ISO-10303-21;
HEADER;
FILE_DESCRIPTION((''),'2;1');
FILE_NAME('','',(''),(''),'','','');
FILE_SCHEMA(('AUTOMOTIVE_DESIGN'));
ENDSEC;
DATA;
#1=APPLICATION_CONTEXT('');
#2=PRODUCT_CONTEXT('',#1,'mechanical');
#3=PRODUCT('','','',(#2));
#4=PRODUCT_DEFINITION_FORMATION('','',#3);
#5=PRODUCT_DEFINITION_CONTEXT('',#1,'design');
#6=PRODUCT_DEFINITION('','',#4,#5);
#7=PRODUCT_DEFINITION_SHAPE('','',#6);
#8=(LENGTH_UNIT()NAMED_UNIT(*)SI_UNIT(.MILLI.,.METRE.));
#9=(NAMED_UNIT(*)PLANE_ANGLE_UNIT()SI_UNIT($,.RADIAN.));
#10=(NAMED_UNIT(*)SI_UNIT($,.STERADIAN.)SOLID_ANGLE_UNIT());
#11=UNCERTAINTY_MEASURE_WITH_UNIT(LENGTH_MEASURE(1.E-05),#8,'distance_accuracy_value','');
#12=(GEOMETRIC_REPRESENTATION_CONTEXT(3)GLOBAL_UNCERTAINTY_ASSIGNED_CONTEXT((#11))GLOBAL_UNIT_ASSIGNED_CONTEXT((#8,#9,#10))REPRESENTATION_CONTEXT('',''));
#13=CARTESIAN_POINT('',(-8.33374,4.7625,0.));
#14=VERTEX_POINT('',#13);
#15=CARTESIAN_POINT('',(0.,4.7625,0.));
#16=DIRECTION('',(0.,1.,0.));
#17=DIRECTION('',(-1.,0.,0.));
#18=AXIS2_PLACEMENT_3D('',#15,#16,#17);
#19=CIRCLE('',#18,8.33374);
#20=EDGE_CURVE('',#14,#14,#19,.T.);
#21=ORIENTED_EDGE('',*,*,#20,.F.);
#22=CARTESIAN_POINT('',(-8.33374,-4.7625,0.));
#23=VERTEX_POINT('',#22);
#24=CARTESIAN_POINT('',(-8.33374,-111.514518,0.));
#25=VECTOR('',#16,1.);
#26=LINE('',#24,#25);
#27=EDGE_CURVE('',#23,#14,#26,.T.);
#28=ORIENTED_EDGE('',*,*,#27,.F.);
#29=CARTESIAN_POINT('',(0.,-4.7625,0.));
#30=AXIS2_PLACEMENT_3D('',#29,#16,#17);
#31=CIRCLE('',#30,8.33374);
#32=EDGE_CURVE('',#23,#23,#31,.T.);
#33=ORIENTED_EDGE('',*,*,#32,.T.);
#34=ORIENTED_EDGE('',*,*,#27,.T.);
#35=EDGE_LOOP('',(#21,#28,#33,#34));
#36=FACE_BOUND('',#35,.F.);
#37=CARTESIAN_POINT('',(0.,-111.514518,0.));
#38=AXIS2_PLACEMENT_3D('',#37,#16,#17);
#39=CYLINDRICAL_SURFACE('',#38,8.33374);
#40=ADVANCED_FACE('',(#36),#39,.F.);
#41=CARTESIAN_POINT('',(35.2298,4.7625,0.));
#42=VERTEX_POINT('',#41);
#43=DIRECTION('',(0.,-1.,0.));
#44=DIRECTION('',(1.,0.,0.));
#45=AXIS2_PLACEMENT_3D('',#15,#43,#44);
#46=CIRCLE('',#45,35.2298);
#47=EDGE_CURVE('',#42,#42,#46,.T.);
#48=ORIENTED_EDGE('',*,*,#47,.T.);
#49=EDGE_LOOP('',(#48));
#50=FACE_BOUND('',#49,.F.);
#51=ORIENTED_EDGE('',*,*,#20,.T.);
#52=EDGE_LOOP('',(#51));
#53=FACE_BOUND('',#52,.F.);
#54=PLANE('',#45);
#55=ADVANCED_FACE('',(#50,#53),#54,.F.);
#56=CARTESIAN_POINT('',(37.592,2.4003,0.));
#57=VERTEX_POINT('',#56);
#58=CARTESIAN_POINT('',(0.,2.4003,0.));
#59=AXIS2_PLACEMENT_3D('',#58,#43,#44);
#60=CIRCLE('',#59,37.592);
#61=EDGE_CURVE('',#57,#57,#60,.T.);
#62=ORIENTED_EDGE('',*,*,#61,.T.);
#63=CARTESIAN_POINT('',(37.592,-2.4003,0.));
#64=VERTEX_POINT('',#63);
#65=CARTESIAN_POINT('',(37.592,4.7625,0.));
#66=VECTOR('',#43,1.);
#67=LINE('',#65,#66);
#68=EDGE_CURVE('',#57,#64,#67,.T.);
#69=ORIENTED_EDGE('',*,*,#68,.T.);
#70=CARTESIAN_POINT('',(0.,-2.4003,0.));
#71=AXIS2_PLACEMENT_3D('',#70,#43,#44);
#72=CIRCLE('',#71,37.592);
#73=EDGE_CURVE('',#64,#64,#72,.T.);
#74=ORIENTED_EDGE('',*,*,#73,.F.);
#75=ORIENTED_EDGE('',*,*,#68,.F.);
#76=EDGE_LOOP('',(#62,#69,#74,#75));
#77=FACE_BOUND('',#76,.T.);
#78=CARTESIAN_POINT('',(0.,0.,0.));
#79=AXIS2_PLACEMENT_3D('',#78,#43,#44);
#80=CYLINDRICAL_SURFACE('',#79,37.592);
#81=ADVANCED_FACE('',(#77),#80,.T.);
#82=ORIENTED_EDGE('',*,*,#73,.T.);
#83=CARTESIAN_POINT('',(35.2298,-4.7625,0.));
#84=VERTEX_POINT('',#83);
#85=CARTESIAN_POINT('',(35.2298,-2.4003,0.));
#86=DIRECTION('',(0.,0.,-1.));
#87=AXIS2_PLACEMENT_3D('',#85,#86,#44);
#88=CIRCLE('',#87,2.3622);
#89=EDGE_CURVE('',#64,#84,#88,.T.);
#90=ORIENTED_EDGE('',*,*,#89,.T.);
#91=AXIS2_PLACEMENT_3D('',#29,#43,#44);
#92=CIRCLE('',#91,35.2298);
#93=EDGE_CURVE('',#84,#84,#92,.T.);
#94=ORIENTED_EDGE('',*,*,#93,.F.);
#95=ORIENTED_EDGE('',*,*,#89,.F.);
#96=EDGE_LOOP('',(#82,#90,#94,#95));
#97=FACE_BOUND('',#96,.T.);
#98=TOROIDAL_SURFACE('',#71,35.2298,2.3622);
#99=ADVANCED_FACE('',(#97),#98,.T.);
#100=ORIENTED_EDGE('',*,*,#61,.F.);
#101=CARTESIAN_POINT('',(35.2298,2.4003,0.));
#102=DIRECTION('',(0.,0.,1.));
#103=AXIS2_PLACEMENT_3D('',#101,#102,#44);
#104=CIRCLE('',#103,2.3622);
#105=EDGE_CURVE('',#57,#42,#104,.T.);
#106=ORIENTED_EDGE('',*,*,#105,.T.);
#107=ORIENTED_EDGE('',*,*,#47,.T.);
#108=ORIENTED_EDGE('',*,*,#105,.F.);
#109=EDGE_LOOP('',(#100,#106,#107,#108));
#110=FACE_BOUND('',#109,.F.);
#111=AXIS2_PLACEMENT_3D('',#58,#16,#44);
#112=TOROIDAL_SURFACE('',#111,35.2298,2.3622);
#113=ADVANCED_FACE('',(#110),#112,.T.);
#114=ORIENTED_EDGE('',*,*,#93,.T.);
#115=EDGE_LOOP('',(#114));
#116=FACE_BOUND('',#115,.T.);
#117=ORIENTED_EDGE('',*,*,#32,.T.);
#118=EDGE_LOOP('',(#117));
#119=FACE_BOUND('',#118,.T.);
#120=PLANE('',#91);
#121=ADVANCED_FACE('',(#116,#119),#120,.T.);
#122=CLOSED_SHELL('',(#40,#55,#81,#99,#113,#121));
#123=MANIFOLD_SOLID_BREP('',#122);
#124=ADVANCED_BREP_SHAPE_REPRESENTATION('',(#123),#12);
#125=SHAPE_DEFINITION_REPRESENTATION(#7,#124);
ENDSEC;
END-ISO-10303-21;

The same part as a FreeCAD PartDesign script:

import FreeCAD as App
import Part
import Sketcher
Q = App.Units.Quantity


def edges_at(feature, points):
    """Names of the edges that pass closest to the given points."""
    edges = feature.Shape.Edges
    near = lambda p: min(range(len(edges)), key=lambda i: edges[i].distToShape(Part.Vertex(*p))[0])
    return sorted({f"Edge{near(p) + 1}" for p in points})

doc = App.newDocument("Part")
body = doc.addObject("PartDesign::Body", "Body")

sketch1 = body.newObject("Sketcher::SketchObject", "Sketch")
sketch1.AttachmentSupport = (doc.getObject("XZ_Plane"), [""])
sketch1.MapMode = "FlatFace"
sketch1.addGeometry(Part.Circle(App.Vector(0, 0, 0), App.Vector(0, 0, 1), 38), False)
sketch1.addConstraint([
    Sketcher.Constraint("Coincident", 0, 3, -1, 1),
    Sketcher.Constraint("Diameter", 0, Q("2.96 in")),
])
pad1 = body.newObject("PartDesign::Pad", "Pad")
pad1.Profile = sketch1
pad1.Length = Q("0.375 in")
pad1.Midplane = True

sketch2 = body.newObject("Sketcher::SketchObject", "Sketch001")
sketch2.AttachmentSupport = (doc.getObject("XZ_Plane"), [""])
sketch2.MapMode = "FlatFace"
sketch2.AttachmentOffset = App.Placement(App.Vector(0, 0, 0.1875 * 25.4), App.Rotation())
sketch2.addGeometry(Part.Circle(App.Vector(0, 0, 0), App.Vector(0, 0, 1), 8), False)
sketch2.addConstraint([
    Sketcher.Constraint("Coincident", 0, 3, -1, 1),
    Sketcher.Constraint("Diameter", 0, Q("0.6562 in")),
])
doc.recompute()
hole = body.newObject("PartDesign::Hole", "Hole")
hole.Profile = sketch2
hole.ThreadType = "None"
hole.Diameter = Q("0.6562 in")
hole.DepthType = "ThroughAll"
doc.recompute()

fillet = body.newObject("PartDesign::Fillet", "Fillet")
fillet.Base = (hole, edges_at(hole, [(-37.592, -4.763, 0), (-37.592, 4.763, 0)]))
fillet.Radius = Q("0.093 in")

doc.recompute()
